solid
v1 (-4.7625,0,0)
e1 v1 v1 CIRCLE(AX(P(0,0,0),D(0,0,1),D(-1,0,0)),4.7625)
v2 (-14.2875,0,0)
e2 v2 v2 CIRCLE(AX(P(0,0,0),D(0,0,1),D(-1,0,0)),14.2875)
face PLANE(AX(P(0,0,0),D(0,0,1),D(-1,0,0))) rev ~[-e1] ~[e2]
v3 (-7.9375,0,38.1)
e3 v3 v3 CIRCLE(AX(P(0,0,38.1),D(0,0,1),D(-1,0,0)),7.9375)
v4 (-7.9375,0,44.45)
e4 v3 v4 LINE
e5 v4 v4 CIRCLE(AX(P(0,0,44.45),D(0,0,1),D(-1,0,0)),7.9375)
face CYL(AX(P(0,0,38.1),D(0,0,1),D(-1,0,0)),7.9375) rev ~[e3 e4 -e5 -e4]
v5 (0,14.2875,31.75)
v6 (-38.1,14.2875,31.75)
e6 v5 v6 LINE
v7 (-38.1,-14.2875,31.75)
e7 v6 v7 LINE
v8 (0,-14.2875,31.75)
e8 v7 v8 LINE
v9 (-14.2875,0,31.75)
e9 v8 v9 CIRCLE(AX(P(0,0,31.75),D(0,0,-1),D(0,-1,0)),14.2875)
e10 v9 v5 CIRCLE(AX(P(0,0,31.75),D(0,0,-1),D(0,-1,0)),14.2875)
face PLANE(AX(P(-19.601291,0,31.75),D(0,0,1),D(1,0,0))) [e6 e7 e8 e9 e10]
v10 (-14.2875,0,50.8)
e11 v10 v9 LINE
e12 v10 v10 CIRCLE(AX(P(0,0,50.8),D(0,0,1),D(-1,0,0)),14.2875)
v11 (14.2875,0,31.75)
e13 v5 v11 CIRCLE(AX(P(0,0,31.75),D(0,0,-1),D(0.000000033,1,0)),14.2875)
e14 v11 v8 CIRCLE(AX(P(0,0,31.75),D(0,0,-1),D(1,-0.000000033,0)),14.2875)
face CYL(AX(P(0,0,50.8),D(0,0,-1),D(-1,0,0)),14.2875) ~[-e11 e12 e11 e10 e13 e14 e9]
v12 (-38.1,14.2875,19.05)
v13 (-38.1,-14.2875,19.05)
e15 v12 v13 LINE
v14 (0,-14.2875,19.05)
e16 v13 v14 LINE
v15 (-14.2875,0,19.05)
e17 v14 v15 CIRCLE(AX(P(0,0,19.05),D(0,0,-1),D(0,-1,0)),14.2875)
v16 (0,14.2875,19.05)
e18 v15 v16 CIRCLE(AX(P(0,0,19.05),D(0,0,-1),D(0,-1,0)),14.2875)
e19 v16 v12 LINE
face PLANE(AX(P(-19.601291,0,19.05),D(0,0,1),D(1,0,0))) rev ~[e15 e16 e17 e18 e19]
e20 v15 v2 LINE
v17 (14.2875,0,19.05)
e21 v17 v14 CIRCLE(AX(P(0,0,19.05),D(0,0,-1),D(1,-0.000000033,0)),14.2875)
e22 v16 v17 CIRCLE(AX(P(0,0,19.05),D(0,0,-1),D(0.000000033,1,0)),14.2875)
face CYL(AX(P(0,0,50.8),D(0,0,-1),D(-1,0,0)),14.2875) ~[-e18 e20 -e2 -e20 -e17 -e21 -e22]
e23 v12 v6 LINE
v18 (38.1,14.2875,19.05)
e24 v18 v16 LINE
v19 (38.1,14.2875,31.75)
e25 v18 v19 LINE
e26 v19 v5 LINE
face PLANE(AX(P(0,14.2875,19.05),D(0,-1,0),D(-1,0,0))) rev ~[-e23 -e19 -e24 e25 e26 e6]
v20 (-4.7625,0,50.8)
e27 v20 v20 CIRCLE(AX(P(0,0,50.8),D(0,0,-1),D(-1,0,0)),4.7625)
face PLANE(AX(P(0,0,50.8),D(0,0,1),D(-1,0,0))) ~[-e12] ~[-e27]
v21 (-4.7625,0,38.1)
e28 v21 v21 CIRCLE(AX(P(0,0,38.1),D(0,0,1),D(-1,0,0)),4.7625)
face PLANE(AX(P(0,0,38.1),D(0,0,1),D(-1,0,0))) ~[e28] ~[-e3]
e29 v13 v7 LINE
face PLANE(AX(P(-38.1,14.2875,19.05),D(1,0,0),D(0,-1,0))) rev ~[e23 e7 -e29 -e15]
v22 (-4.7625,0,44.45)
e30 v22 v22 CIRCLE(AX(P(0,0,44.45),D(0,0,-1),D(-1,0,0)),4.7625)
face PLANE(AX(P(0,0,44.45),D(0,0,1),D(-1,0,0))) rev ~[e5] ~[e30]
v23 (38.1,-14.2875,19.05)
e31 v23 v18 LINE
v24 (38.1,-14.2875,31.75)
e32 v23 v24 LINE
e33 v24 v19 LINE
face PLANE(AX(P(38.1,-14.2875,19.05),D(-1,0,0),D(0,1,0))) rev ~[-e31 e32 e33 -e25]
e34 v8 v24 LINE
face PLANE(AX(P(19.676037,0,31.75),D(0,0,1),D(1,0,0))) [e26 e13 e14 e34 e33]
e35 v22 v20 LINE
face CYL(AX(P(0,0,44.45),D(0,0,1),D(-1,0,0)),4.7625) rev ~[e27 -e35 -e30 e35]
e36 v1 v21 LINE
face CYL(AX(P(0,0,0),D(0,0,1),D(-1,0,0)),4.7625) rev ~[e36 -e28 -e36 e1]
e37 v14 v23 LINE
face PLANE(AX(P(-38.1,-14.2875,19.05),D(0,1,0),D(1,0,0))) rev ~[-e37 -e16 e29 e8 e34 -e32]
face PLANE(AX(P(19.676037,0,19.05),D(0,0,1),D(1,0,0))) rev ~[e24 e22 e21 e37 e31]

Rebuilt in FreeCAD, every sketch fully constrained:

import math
import FreeCAD as App
import Part
import Sketcher
from FreeCAD import Vector
Q = App.Units.Quantity

doc = App.newDocument("Part")
body = doc.addObject("PartDesign::Body", "Body")

# Sketch on XZ plane
sketch1 = doc.addObject("Sketcher::SketchObject", "Sketch")
body.addObject(sketch1)
sketch1.AttachmentSupport = (doc.XZ_Plane, [""])
sketch1.MapMode = "FlatFace"
sketch1.addGeometry([
    Part.LineSegment(Vector(-4.8, 44.5, 0), Vector(-4.8, 50.8, 0)),  # 0
    Part.LineSegment(Vector(-4.8, 50.8, 0), Vector(-14.3, 50.8, 0)),  # 1
    Part.LineSegment(Vector(-14.3, 50.8, 0), Vector(-14.3, 0, 0)),  # 2
    Part.LineSegment(Vector(-14.3, 0, 0), Vector(-4.8, 0, 0)),  # 3
    Part.LineSegment(Vector(-4.8, 0, 0), Vector(-4.8, 38.1, 0)),  # 4
    Part.LineSegment(Vector(-4.8, 38.1, 0), Vector(-7.9, 38.1, 0)),  # 5
    Part.LineSegment(Vector(-7.9, 38.1, 0), Vector(-7.9, 44.5, 0)),  # 6
    Part.LineSegment(Vector(-7.9, 44.5, 0), Vector(-4.8, 44.5, 0)),  # 7
], False)
sketch1.addConstraint([
    Sketcher.Constraint("Coincident", 0, 2, 1, 1),
    Sketcher.Constraint("Coincident", 1, 2, 2, 1),
    Sketcher.Constraint("Coincident", 2, 2, 3, 1),
    Sketcher.Constraint("Coincident", 3, 2, 4, 1),
    Sketcher.Constraint("Coincident", 4, 2, 5, 1),
    Sketcher.Constraint("Coincident", 5, 2, 6, 1),
    Sketcher.Constraint("Coincident", 6, 2, 7, 1),
    Sketcher.Constraint("Coincident", 7, 2, 0, 1),
    Sketcher.Constraint("Vertical", 0),
    Sketcher.Constraint("Horizontal", 1),
    Sketcher.Constraint("Vertical", 2),
    Sketcher.Constraint("Horizontal", 3),
    Sketcher.Constraint("Vertical", 4),
    Sketcher.Constraint("Horizontal", 5),
    Sketcher.Constraint("Vertical", 6),
    Sketcher.Constraint("Horizontal", 7),
    Sketcher.Constraint("PointOnObject", 2, 2, -1),
    Sketcher.Constraint("Vertical", 0, 2, 3, 2),
    Sketcher.Constraint("Equal", 0, 6),
    Sketcher.Constraint("DistanceY", 2, 2, 2, 1, Q("2 in")),
    Sketcher.Constraint("DistanceY", 4, 1, 4, 2, Q("1.5 in")),
    Sketcher.Constraint("DistanceX", 1, 2, 1, 1, Q("0.375 in")),
    Sketcher.Constraint("DistanceX", 5, 2, 5, 1, Q("0.125 in")),
    Sketcher.Constraint("DistanceX", 0, 2, -1, 1, Q("0.1875 in")),
])
revolution = doc.addObject("PartDesign::Revolution", "Revolution")
body.addObject(revolution)
revolution.Profile = sketch1
revolution.ReferenceAxis = (sketch1, ["V_Axis"])
revolution.Angle = 360

# Sketch on XY plane
sketch2 = doc.addObject("Sketcher::SketchObject", "Sketch001")
body.addObject(sketch2)
sketch2.AttachmentSupport = (doc.XY_Plane, [""])
sketch2.MapMode = "FlatFace"
sketch2.AttachmentOffset = App.Placement(Vector(0, 0, 0.75 * 25.4), App.Rotation())
sketch2.addGeometry([
    Part.LineSegment(Vector(0, 14, 0), Vector(-38, 14, 0)),  # 0
    Part.LineSegment(Vector(-38, 14, 0), Vector(-38, -14, 0)),  # 1
    Part.LineSegment(Vector(-38, -14, 0), Vector(0, -14, 0)),  # 2
    Part.ArcOfCircle(Part.Circle(Vector(0, 0, 0), Vector(0, 0, 1), 14), math.radians(90), math.radians(270)),  # 3
    Part.LineSegment(Vector(38, 14, 0), Vector(0, 14, 0)),  # 4
    Part.ArcOfCircle(Part.Circle(Vector(0, 0, 0), Vector(0, 0, 1), 14), math.radians(0), math.radians(90)),  # 5
    Part.ArcOfCircle(Part.Circle(Vector(0, 0, 0), Vector(0, 0, 1), 14), math.radians(-90), math.radians(0)),  # 6
    Part.LineSegment(Vector(0, -14, 0), Vector(38, -14, 0)),  # 7
    Part.LineSegment(Vector(38, -14, 0), Vector(38, 14, 0)),  # 8
], False)
sketch2.addConstraint([
    Sketcher.Constraint("Coincident", 0, 2, 1, 1),
    Sketcher.Constraint("Coincident", 1, 2, 2, 1),
    Sketcher.Constraint("Tangent", 2, 2, 3, 2),
    Sketcher.Constraint("Tangent", 3, 1, 0, 1),
    Sketcher.Constraint("Tangent", 4, 2, 5, 2),
    Sketcher.Constraint("Tangent", 5, 1, 6, 2),
    Sketcher.Constraint("Tangent", 6, 1, 7, 1),
    Sketcher.Constraint("Coincident", 7, 2, 8, 1),
    Sketcher.Constraint("Coincident", 8, 2, 4, 1),
    Sketcher.Constraint("Horizontal", 0),
    Sketcher.Constraint("Vertical", 1),
    Sketcher.Constraint("Horizontal", 2),
    Sketcher.Constraint("Horizontal", 4),
    Sketcher.Constraint("Horizontal", 7),
    Sketcher.Constraint("Vertical", 8),
    Sketcher.Constraint("Coincident", 3, 3, -1, 1),
    Sketcher.Constraint("Coincident", 5, 3, -1, 1),
    Sketcher.Constraint("Coincident", 6, 1, 2, 2),
    Sketcher.Constraint("PointOnObject", 5, 1, -1),
    Sketcher.Constraint("Equal", 2, 4),
    Sketcher.Constraint("DistanceX", 0, 2, 0, 1, Q("1.5 in")),
    Sketcher.Constraint("Radius", 3, Q("0.5625 in")),
])
pad1 = doc.addObject("PartDesign::Pad", "Pad")
body.addObject(pad1)
pad1.Profile = sketch2
pad1.Length = Q("0.5 in")

# Sketch on XY plane
sketch3 = doc.addObject("Sketcher::SketchObject", "Sketch002")
body.addObject(sketch3)
sketch3.AttachmentSupport = (doc.XY_Plane, [""])
sketch3.MapMode = "FlatFace"
sketch3.AttachmentOffset = App.Placement(Vector(0, 0, 2 * 25.4), App.Rotation())
sketch3.addGeometry(Part.Circle(Vector(0, 0, 0), Vector(0, 0, 1), 4.8), False)
sketch3.addConstraint([
    Sketcher.Constraint("Coincident", 0, 3, -1, 1),
    Sketcher.Constraint("Diameter", 0, Q("0.375 in")),
])
pocket1 = doc.addObject("PartDesign::Pocket", "Pocket")
body.addObject(pocket1)
pocket1.Profile = sketch3
pocket1.Type = "ThroughAll"

doc.recompute()
